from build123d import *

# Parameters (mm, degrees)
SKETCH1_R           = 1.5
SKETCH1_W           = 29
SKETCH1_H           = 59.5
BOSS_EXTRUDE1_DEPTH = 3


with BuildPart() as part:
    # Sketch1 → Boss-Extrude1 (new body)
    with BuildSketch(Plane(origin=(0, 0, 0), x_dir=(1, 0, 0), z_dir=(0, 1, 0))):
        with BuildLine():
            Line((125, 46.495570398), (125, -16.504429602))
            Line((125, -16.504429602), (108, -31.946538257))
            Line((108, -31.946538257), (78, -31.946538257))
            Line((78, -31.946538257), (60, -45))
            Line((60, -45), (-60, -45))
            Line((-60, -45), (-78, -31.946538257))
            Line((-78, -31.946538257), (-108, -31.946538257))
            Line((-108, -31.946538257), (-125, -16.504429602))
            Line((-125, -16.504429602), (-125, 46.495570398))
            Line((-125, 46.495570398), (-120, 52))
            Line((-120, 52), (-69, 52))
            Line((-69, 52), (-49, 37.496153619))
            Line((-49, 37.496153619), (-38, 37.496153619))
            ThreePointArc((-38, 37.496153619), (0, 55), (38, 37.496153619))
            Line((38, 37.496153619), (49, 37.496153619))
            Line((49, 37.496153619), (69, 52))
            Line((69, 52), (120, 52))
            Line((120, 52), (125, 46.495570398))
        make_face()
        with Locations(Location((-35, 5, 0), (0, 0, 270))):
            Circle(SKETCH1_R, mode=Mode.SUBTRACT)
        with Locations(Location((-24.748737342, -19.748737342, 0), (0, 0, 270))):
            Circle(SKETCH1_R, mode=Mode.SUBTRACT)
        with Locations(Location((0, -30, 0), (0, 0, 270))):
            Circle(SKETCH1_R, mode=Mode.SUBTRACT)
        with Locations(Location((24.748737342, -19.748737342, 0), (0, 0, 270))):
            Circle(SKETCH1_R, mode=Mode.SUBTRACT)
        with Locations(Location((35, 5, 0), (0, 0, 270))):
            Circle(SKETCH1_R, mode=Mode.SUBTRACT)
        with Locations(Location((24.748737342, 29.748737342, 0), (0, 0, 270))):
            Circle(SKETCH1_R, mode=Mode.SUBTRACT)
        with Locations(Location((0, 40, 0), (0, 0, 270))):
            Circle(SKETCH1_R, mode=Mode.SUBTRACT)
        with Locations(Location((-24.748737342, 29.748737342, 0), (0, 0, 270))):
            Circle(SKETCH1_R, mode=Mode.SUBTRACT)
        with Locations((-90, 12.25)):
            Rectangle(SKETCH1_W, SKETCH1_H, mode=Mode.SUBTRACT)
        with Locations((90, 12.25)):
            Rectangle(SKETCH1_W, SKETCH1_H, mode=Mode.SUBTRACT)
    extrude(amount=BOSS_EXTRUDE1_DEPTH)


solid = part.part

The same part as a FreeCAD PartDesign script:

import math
import FreeCAD as App
import Part
import Sketcher
Q = App.Units.Quantity


def add_polygon(sketch, points):
    """Adds a closed chain of lines whose ends are joined by coincident constraints."""
    first, n = sketch.GeometryCount, len(points)
    for a, b in zip(points, points[1:] + points[:1]):
        sketch.addGeometry(Part.LineSegment(App.Vector(*a, 0), App.Vector(*b, 0)), False)
    for i in range(n):
        sketch.addConstraint(Sketcher.Constraint("Coincident", first + i, 2, first + (i + 1) % n, 1))

doc = App.newDocument("Part")
body = doc.addObject("PartDesign::Body", "Body")

sketch1 = doc.addObject("Sketcher::SketchObject", "Sketch")
body.addObject(sketch1)
sketch1.AttachmentSupport = (doc.XZ_Plane, [""])
sketch1.MapMode = "FlatFace"
sketch1.addGeometry(Part.LineSegment(App.Vector(125, 16.50443, 0), App.Vector(125, -46.49557, 0)), False)
sketch1.addGeometry(Part.LineSegment(App.Vector(125, -46.49557, 0), App.Vector(120, -52, 0)), False)
sketch1.addGeometry(Part.LineSegment(App.Vector(120, -52, 0), App.Vector(69, -52, 0)), False)
sketch1.addGeometry(Part.LineSegment(App.Vector(69, -52, 0), App.Vector(49, -37.496154, 0)), False)
sketch1.addGeometry(Part.LineSegment(App.Vector(49, -37.496154, 0), App.Vector(38, -37.496154, 0)), False)
sketch1.addGeometry(Part.ArcOfCircle(Part.Circle(App.Vector(0, -5, 0), App.Vector(0, 0, 1), 50), math.radians(-139.464198), math.radians(-40.535802)), False)
sketch1.addGeometry(Part.LineSegment(App.Vector(-38, -37.496154, 0), App.Vector(-49, -37.496154, 0)), False)
sketch1.addGeometry(Part.LineSegment(App.Vector(-49, -37.496154, 0), App.Vector(-69, -52, 0)), False)
sketch1.addGeometry(Part.LineSegment(App.Vector(-69, -52, 0), App.Vector(-120, -52, 0)), False)
sketch1.addGeometry(Part.LineSegment(App.Vector(-120, -52, 0), App.Vector(-125, -46.49557, 0)), False)
sketch1.addGeometry(Part.LineSegment(App.Vector(-125, -46.49557, 0), App.Vector(-125, 16.50443, 0)), False)
sketch1.addGeometry(Part.LineSegment(App.Vector(-125, 16.50443, 0), App.Vector(-108, 31.946538, 0)), False)
sketch1.addGeometry(Part.LineSegment(App.Vector(-108, 31.946538, 0), App.Vector(-78, 31.946538, 0)), False)
sketch1.addGeometry(Part.LineSegment(App.Vector(-78, 31.946538, 0), App.Vector(-60, 45, 0)), False)
sketch1.addGeometry(Part.LineSegment(App.Vector(-60, 45, 0), App.Vector(60, 45, 0)), False)
sketch1.addGeometry(Part.LineSegment(App.Vector(60, 45, 0), App.Vector(78, 31.946538, 0)), False)
sketch1.addGeometry(Part.LineSegment(App.Vector(78, 31.946538, 0), App.Vector(108, 31.946538, 0)), False)
sketch1.addGeometry(Part.LineSegment(App.Vector(108, 31.946538, 0), App.Vector(125, 16.50443, 0)), False)
sketch1.addGeometry(Part.Circle(App.Vector(24.748737, 19.748737, 0), App.Vector(0, 0, 1), 1.5), False)
sketch1.addGeometry(Part.Circle(App.Vector(35, -5, 0), App.Vector(0, 0, 1), 1.5), False)
sketch1.addGeometry(Part.Circle(App.Vector(0, 30, 0), App.Vector(0, 0, 1), 1.5), False)
sketch1.addGeometry(Part.Circle(App.Vector(-24.748737, 19.748737, 0), App.Vector(0, 0, 1), 1.5), False)
sketch1.addGeometry(Part.Circle(App.Vector(-35, -5, 0), App.Vector(0, 0, 1), 1.5), False)
add_polygon(sketch1, [(75.5, 17.5), (75.5, -42), (104.5, -42), (104.5, 17.5)])
sketch1.addGeometry(Part.Circle(App.Vector(24.748737, -29.748737, 0), App.Vector(0, 0, 1), 1.5), False)
add_polygon(sketch1, [(-104.5, 17.5), (-104.5, -42), (-75.5, -42), (-75.5, 17.5)])
sketch1.addGeometry(Part.Circle(App.Vector(-24.748737, -29.748737, 0), App.Vector(0, 0, 1), 1.5), False)
sketch1.addGeometry(Part.Circle(App.Vector(0, -40, 0), App.Vector(0, 0, 1), 1.5), False)
sketch1.addConstraint([
    Sketcher.Constraint("Coincident", 0, 2, 1, 1),
    Sketcher.Constraint("Coincident", 1, 2, 2, 1),
    Sketcher.Constraint("Coincident", 2, 2, 3, 1),
    Sketcher.Constraint("Coincident", 3, 2, 4, 1),
    Sketcher.Constraint("Coincident", 4, 2, 5, 2),
    Sketcher.Constraint("Coincident", 5, 1, 6, 1),
    Sketcher.Constraint("Coincident", 6, 2, 7, 1),
    Sketcher.Constraint("Coincident", 7, 2, 8, 1),
    Sketcher.Constraint("Coincident", 8, 2, 9, 1),
    Sketcher.Constraint("Coincident", 9, 2, 10, 1),
    Sketcher.Constraint("Coincident", 10, 2, 11, 1),
    Sketcher.Constraint("Coincident", 11, 2, 12, 1),
    Sketcher.Constraint("Coincident", 12, 2, 13, 1),
    Sketcher.Constraint("Coincident", 13, 2, 14, 1),
    Sketcher.Constraint("Coincident", 14, 2, 15, 1),
    Sketcher.Constraint("Coincident", 15, 2, 16, 1),
    Sketcher.Constraint("Coincident", 16, 2, 17, 1),
    Sketcher.Constraint("Coincident", 17, 2, 0, 1),
    Sketcher.Constraint("Vertical", 0),
    Sketcher.Constraint("Horizontal", 2),
    Sketcher.Constraint("Horizontal", 4),
    Sketcher.Constraint("Horizontal", 6),
    Sketcher.Constraint("Horizontal", 8),
    Sketcher.Constraint("Vertical", 10),
    Sketcher.Constraint("Horizontal", 12),
    Sketcher.Constraint("Horizontal", 14),
    Sketcher.Constraint("Horizontal", 16),
    Sketcher.Constraint("Vertical", 23),
    Sketcher.Constraint("Horizontal", 24),
    Sketcher.Constraint("Vertical", 25),
    Sketcher.Constraint("Horizontal", 26),
    Sketcher.Constraint("Vertical", 28),
    Sketcher.Constraint("Horizontal", 29),
    Sketcher.Constraint("Vertical", 30),
    Sketcher.Constraint("Horizontal", 31),
    Sketcher.Constraint("Equal", 18, 19),
    Sketcher.Constraint("Equal", 19, 20),
    Sketcher.Constraint("Equal", 20, 21),
    Sketcher.Constraint("Equal", 21, 22),
    Sketcher.Constraint("Equal", 22, 27),
    Sketcher.Constraint("Equal", 27, 32),
    Sketcher.Constraint("Equal", 32, 33),
    Sketcher.Constraint("Symmetric", 18, 3, 21, 3, -2),
    Sketcher.Constraint("Symmetric", 19, 3, 22, 3, -2),
    Sketcher.Constraint("Symmetric", 27, 3, 32, 3, -2),
    Sketcher.Constraint("Symmetric", 4, 2, 5, 1, -2),
    Sketcher.Constraint("Symmetric", 2, 2, 7, 2, -2),
    Sketcher.Constraint("Symmetric", 0, 2, 9, 2, -2),
    Sketcher.Constraint("Symmetric", 12, 2, 15, 2, -2),
    Sketcher.Constraint("Symmetric", 24, 2, 28, 2, -2),
    Sketcher.Constraint("Symmetric", 26, 2, 30, 2, -2),
    Sketcher.Constraint("PointOnObject", 20, 3, -2),
    Sketcher.Constraint("PointOnObject", 33, 3, -2),
    Sketcher.Constraint("Perpendicular", 9, 11),
    Sketcher.Constraint("Parallel", 7, 13),
    Sketcher.Constraint("Parallel", 3, 15),
    Sketcher.Constraint("Perpendicular", 1, 17),
    Sketcher.Constraint("Horizontal", 5, 3, 19, 3),
    Sketcher.Constraint("Horizontal", 10, 2, 17, 2),
    Sketcher.Constraint("Vertical", 18, 3, 27, 3),
    Sketcher.Constraint("Equal", 4, 6),
    Sketcher.Constraint("Equal", 2, 8),
    Sketcher.Constraint("Diameter", 18, Q("3 mm")),
    Sketcher.Constraint("Radius", 5, Q("50 mm")),
    Sketcher.Constraint("DistanceX", 2, 2, 2, 1, Q("51 mm")),
    Sketcher.Constraint("DistanceX", 4, 2, 4, 1, Q("11 mm")),
    Sketcher.Constraint("DistanceX", 12, 1, 12, 2, Q("30 mm")),
    Sketcher.Constraint("DistanceX", 14, 1, 14, 2, Q("120 mm")),
    Sketcher.Constraint("DistanceX", 24, 1, 24, 2, Q("29 mm")),
    Sketcher.Constraint("DistanceY", 0, 2, 0, 1, Q("63 mm")),
    Sketcher.Constraint("DistanceY", 23, 2, 23, 1, Q("59.5 mm")),
    Sketcher.Constraint("DistanceY", 5, 3, -1, 1, Q("5 mm")),
    Sketcher.Constraint("DistanceX", -1, 1, 19, 3, Q("35 mm")),
    Sketcher.Constraint("DistanceY", -1, 1, 20, 3, Q("30 mm")),
    Sketcher.Constraint("DistanceY", 33, 3, -1, 1, Q("40 mm")),
    Sketcher.Constraint("DistanceX", -1, 1, 0, 2, Q("125 mm")),
    Sketcher.Constraint("DistanceX", -1, 1, 1, 2, Q("120 mm")),
    Sketcher.Constraint("DistanceY", 1, 2, -1, 1, Q("52 mm")),
    Sketcher.Constraint("DistanceX", -1, 1, 3, 2, Q("49 mm")),
    Sketcher.Constraint("DistanceX", 11, 2, -1, 1, Q("108 mm")),
    Sketcher.Constraint("DistanceY", -1, 1, 13, 2, Q("45 mm")),
    Sketcher.Constraint("DistanceY", 23, 2, -1, 1, Q("42 mm")),
    Sketcher.Constraint("DistanceX", -1, 1, 23, 2, Q("75.5 mm")),
    Sketcher.Constraint("DistanceY", 21, 3, 11, 2, Q("12.197801 mm")),
    Sketcher.Constraint("DistanceX", -1, 1, 18, 3, Q("24.748737 mm")),
    Sketcher.Constraint("DistanceY", 27, 3, -1, 1, Q("29.748737 mm")),
])
pad1 = doc.addObject("PartDesign::Pad", "Pad")
body.addObject(pad1)
pad1.Profile = sketch1
pad1.Length = 3
pad1.Reversed = True

doc.recompute()
